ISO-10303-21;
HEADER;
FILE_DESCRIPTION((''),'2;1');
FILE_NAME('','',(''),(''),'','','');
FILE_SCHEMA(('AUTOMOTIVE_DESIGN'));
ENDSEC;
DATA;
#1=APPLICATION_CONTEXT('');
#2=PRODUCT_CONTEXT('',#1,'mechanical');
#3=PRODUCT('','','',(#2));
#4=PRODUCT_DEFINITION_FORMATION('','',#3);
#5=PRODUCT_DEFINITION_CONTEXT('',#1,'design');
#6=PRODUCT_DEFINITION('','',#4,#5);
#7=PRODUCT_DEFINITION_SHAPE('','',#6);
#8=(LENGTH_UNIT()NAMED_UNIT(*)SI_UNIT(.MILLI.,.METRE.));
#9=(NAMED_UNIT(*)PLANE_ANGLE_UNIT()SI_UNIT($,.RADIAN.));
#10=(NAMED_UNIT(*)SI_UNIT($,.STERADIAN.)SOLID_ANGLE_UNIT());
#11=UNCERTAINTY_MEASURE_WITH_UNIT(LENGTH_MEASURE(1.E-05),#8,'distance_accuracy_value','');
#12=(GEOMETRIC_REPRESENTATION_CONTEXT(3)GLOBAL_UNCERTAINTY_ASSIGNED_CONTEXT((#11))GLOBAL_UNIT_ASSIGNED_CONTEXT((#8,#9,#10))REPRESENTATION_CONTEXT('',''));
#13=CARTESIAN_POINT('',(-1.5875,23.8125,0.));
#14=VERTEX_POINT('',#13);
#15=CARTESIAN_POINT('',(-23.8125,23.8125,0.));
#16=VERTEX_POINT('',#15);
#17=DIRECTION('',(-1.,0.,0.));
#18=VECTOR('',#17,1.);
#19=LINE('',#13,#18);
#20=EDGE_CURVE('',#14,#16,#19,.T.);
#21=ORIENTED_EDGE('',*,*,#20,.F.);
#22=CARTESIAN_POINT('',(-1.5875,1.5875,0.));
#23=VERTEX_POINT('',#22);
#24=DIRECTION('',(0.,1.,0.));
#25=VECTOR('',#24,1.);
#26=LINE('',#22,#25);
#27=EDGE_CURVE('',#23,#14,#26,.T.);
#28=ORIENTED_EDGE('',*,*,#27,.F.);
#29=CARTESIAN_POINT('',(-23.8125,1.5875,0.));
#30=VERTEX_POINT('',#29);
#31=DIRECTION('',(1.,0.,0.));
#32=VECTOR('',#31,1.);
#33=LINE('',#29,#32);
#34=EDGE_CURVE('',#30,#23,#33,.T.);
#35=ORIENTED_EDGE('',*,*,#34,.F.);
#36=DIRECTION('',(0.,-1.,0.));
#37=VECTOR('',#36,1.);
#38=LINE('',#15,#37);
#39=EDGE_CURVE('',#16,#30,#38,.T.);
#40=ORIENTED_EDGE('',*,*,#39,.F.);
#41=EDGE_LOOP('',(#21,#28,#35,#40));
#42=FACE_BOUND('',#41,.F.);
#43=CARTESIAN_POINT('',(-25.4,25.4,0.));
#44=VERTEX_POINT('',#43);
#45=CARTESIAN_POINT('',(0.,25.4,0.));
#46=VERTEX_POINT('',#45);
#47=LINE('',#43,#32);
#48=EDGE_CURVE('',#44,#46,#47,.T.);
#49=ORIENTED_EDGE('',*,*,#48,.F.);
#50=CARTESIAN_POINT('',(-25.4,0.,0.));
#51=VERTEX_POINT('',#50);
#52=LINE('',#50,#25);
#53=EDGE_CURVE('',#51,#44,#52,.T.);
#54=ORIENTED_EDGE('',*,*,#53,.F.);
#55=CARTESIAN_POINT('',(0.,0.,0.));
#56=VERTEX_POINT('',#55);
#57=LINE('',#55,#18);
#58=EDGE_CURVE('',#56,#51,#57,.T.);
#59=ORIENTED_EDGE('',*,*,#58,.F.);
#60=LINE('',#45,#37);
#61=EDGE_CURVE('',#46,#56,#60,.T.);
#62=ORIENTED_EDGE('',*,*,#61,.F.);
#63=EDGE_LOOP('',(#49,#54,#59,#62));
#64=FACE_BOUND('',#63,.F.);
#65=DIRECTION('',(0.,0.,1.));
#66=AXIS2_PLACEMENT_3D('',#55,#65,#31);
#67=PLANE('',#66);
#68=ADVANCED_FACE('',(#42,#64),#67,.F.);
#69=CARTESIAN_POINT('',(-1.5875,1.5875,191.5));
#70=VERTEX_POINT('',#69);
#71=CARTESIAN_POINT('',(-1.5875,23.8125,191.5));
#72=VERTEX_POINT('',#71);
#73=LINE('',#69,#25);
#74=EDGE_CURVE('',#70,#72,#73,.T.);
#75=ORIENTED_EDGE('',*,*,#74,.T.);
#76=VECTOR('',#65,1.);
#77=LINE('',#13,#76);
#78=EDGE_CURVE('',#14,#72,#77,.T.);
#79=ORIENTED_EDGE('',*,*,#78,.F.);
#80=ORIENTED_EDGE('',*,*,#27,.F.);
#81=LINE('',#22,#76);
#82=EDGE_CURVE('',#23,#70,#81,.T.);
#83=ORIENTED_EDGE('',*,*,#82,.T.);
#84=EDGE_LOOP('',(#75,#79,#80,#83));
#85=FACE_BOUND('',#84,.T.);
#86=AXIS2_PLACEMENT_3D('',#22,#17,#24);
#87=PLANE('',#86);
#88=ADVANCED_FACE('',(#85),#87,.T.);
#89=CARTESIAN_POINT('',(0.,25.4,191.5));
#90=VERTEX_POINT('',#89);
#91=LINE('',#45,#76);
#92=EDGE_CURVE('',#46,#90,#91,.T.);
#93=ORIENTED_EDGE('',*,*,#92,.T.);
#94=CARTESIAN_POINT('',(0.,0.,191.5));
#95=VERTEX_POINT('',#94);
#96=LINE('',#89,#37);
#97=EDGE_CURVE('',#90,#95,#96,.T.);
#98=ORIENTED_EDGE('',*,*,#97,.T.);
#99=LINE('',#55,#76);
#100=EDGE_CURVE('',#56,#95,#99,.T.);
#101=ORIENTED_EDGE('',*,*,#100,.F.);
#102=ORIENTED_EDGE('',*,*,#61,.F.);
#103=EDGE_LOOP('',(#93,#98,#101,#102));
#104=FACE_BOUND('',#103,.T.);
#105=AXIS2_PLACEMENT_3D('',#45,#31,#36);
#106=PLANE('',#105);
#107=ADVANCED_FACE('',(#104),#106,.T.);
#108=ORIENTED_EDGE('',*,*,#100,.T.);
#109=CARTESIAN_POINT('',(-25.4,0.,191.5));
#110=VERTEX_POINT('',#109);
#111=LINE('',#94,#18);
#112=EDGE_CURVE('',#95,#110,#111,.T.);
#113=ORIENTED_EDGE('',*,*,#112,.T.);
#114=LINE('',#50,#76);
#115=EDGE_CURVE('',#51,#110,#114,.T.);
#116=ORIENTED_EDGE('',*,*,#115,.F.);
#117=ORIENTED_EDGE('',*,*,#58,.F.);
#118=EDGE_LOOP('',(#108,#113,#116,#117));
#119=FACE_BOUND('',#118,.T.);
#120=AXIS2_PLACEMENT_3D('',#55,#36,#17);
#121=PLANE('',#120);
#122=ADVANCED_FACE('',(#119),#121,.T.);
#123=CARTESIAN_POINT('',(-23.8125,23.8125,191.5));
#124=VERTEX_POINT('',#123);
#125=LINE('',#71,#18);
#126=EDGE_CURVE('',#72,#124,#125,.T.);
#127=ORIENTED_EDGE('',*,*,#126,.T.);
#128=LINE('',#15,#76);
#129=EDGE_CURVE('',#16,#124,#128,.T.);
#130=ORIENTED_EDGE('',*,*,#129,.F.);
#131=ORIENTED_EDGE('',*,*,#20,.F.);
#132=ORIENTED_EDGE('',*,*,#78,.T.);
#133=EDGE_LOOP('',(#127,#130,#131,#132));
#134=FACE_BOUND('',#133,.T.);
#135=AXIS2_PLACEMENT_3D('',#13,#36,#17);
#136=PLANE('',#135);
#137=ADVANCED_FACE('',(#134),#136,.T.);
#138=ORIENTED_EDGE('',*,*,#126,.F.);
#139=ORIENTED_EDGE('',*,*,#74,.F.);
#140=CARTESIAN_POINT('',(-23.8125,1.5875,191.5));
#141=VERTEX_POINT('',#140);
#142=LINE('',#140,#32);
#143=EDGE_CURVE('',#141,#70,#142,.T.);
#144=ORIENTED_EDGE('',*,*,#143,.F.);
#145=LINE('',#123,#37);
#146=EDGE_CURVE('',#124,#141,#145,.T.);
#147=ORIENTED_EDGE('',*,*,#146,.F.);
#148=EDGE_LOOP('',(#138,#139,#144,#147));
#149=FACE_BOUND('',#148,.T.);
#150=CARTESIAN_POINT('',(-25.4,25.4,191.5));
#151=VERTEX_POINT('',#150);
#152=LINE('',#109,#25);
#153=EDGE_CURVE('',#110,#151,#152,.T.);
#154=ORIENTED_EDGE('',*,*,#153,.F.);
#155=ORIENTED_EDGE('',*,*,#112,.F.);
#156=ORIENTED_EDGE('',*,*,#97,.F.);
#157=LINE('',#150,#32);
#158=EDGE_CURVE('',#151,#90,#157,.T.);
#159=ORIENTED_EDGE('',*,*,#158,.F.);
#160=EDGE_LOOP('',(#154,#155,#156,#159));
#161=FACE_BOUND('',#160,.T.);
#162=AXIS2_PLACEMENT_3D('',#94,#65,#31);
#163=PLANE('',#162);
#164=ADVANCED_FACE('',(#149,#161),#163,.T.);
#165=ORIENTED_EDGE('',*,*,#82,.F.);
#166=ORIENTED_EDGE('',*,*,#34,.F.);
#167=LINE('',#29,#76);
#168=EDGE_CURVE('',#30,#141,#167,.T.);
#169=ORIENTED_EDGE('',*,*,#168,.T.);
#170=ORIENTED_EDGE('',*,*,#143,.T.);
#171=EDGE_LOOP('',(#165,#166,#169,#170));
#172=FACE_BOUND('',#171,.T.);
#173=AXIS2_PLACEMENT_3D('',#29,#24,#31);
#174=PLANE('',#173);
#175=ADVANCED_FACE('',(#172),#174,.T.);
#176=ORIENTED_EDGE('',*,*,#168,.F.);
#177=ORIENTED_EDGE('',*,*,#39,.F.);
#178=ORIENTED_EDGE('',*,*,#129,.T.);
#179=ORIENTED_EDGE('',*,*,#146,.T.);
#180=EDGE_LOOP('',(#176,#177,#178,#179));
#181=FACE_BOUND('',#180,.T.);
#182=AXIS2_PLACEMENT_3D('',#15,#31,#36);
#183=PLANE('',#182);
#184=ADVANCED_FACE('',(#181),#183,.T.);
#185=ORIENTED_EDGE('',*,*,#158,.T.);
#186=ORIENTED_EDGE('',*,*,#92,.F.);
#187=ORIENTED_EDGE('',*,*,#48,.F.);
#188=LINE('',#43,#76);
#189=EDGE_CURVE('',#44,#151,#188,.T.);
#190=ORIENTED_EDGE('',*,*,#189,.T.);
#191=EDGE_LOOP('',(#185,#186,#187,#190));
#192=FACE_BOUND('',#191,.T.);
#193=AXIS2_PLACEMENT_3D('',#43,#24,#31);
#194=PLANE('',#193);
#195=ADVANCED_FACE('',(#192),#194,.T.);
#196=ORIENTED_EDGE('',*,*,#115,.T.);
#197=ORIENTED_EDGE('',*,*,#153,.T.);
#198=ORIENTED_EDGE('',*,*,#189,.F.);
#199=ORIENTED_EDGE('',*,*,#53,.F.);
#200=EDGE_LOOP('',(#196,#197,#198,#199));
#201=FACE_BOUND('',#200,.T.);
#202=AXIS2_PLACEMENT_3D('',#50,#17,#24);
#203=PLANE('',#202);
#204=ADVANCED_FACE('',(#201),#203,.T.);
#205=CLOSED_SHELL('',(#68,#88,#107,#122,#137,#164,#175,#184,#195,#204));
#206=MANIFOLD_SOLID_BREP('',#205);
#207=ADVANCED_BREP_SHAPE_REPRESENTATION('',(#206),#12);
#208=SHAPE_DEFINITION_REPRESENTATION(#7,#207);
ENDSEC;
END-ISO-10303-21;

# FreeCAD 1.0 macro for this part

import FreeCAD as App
import Part
import Sketcher
Q = App.Units.Quantity

doc = App.newDocument("Part")
body = doc.addObject("PartDesign::Body", "Body")

# Sketch on XY plane
sketch1 = body.newObject("Sketcher::SketchObject", "Sketch")
sketch1.AttachmentSupport = (doc.getObject("XY_Plane"), [""])
sketch1.MapMode = "FlatFace"
sketch1.addGeometry([
    Part.LineSegment(App.Vector(-25, 0, 0), App.Vector(0, 0, 0)),  # 0
    Part.LineSegment(App.Vector(0, 0, 0), App.Vector(0, 25, 0)),  # 1
    Part.LineSegment(App.Vector(0, 25, 0), App.Vector(-25, 25, 0)),  # 2
    Part.LineSegment(App.Vector(-25, 25, 0), App.Vector(-25, 0, 0)),  # 3
    Part.LineSegment(App.Vector(-2, 2, 0), App.Vector(-24, 2, 0)),  # 4
    Part.LineSegment(App.Vector(-24, 2, 0), App.Vector(-24, 24, 0)),  # 5
    Part.LineSegment(App.Vector(-24, 24, 0), App.Vector(-2, 24, 0)),  # 6
    Part.LineSegment(App.Vector(-2, 24, 0), App.Vector(-2, 2, 0)),  # 7
], False)
sketch1.addConstraint([
    Sketcher.Constraint("Coincident", 0, 2, 1, 1),
    Sketcher.Constraint("Coincident", 1, 2, 2, 1),
    Sketcher.Constraint("Coincident", 2, 2, 3, 1),
    Sketcher.Constraint("Coincident", 3, 2, 0, 1),
    Sketcher.Constraint("Coincident", 4, 2, 5, 1),
    Sketcher.Constraint("Coincident", 5, 2, 6, 1),
    Sketcher.Constraint("Coincident", 6, 2, 7, 1),
    Sketcher.Constraint("Coincident", 7, 2, 4, 1),
    Sketcher.Constraint("Horizontal", 0),
    Sketcher.Constraint("Vertical", 1),
    Sketcher.Constraint("Horizontal", 2),
    Sketcher.Constraint("Vertical", 3),
    Sketcher.Constraint("Horizontal", 4),
    Sketcher.Constraint("Vertical", 5),
    Sketcher.Constraint("Horizontal", 6),
    Sketcher.Constraint("Vertical", 7),
    Sketcher.Constraint("Coincident", 0, 2, -1, 1),
    Sketcher.Constraint("Equal", 2, 1),
    Sketcher.Constraint("Equal", 6, 5),
    Sketcher.Constraint("DistanceX", 0, 1, 0, 2, Q("1 in")),
    Sketcher.Constraint("DistanceX", 4, 2, 4, 1, Q("0.875 in")),
    Sketcher.Constraint("DistanceX", 4, 2, -1, 1, Q("0.9375 in")),
    Sketcher.Constraint("DistanceY", -1, 1, 4, 2, Q("0.0625 in")),
])
pad1 = body.newObject("PartDesign::Pad", "Pad")
pad1.Profile = sketch1
pad1.Length = 191.5

doc.recompute()
